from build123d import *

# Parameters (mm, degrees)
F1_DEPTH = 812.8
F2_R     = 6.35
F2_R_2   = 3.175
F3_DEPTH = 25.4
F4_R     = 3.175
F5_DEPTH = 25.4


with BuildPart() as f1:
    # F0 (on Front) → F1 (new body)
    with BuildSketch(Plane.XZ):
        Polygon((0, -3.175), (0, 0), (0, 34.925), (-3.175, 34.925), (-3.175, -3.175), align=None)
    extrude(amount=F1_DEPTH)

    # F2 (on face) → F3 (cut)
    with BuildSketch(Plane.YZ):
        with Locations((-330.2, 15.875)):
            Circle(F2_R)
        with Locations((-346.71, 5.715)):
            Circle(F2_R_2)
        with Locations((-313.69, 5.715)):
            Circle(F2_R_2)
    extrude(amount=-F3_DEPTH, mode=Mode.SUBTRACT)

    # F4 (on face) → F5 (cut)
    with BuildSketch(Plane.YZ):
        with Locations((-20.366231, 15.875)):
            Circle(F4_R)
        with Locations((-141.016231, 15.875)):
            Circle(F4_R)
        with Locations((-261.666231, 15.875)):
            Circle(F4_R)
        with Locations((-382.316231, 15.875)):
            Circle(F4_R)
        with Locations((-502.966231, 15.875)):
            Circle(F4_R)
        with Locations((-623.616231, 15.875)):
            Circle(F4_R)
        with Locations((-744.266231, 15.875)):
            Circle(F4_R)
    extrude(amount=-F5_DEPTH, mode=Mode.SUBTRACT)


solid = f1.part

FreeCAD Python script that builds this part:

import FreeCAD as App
import Part
import Sketcher
from FreeCAD import Vector
Q = App.Units.Quantity


def add_polygon(sketch, points):
    """Adds a closed chain of lines whose ends are joined by coincident constraints."""
    first, n = sketch.GeometryCount, len(points)
    for a, b in zip(points, points[1:] + points[:1]):
        sketch.addGeometry(Part.LineSegment(App.Vector(*a, 0), App.Vector(*b, 0)), False)
    for i in range(n):
        sketch.addConstraint(Sketcher.Constraint("Coincident", first + i, 2, first + (i + 1) % n, 1))

doc = App.newDocument("Part")
body = doc.addObject("PartDesign::Body", "Body")

# Sketch on XZ plane
sketch1 = body.newObject("Sketcher::SketchObject", "Sketch")
sketch1.AttachmentSupport = (doc.getObject("XZ_Plane"), [""])
sketch1.MapMode = "FlatFace"
add_polygon(sketch1, [(0, -3.175), (0, 34.925), (-3.175, 34.925), (-3.175, -3.175)])  # lines 0-3
sketch1.addConstraint([
    Sketcher.Constraint("Vertical", 0),
    Sketcher.Constraint("Horizontal", 1),
    Sketcher.Constraint("Vertical", 2),
    Sketcher.Constraint("Horizontal", 3),
    Sketcher.Constraint("PointOnObject", 0, 2, -2),
    Sketcher.Constraint("DistanceY", 0, 1, 0, 2, Q("1.5 in")),
    Sketcher.Constraint("DistanceX", 1, 2, 1, 1, Q("0.125 in")),
    Sketcher.Constraint("DistanceY", -1, 1, 0, 2, Q("1.375 in")),
])
pad1 = body.newObject("PartDesign::Pad", "Pad")
pad1.Profile = sketch1
pad1.Length = Q("32 in")

# Sketch on YZ plane
sketch2 = body.newObject("Sketcher::SketchObject", "Sketch001")
sketch2.AttachmentSupport = (doc.getObject("YZ_Plane"), [""])
sketch2.MapMode = "FlatFace"
sketch2.addGeometry([
    Part.Circle(Vector(-330.2, 15.875, 0), Vector(0, 0, 1), 6.35),
    Part.Circle(Vector(-346.71, 5.715, 0), Vector(0, 0, 1), 3.175),
    Part.Circle(Vector(-313.69, 5.715, 0), Vector(0, 0, 1), 3.175),
], False)
sketch2.addConstraint([
    Sketcher.Constraint("Equal", 1, 2),
    Sketcher.Constraint("Horizontal", 1, 3, 2, 3),
    Sketcher.Constraint("Diameter", 0, Q("0.5 in")),
    Sketcher.Constraint("Diameter", 1, Q("0.25 in")),
    Sketcher.Constraint("DistanceX", 0, 3, -1, 1, Q("13 in")),
    Sketcher.Constraint("DistanceY", 1, 3, 0, 3, Q("0.4 in")),
    Sketcher.Constraint("DistanceX", 1, 3, 2, 3, Q("1.3 in")),
    Sketcher.Constraint("DistanceX", 1, 3, -1, 1, Q("13.65 in")),
    Sketcher.Constraint("DistanceY", -1, 1, 0, 3, Q("0.625 in")),
])
pocket1 = body.newObject("PartDesign::Pocket", "Pocket")
pocket1.Profile = sketch2
pocket1.Length = Q("1 in")

# Sketch on YZ plane
sketch3 = body.newObject("Sketcher::SketchObject", "Sketch002")
sketch3.AttachmentSupport = (doc.getObject("YZ_Plane"), [""])
sketch3.MapMode = "FlatFace"
sketch3.addGeometry([
    Part.Circle(Vector(-20.366231, 15.875, 0), Vector(0, 0, 1), 3.175),  # 0
    Part.Circle(Vector(-141.016231, 15.875, 0), Vector(0, 0, 1), 3.175),  # 1
    Part.Circle(Vector(-261.666231, 15.875, 0), Vector(0, 0, 1), 3.175),  # 2
    Part.Circle(Vector(-382.316231, 15.875, 0), Vector(0, 0, 1), 3.175),  # 3
    Part.Circle(Vector(-502.966231, 15.875, 0), Vector(0, 0, 1), 3.175),  # 4
    Part.Circle(Vector(-623.616231, 15.875, 0), Vector(0, 0, 1), 3.175),  # 5
    Part.Circle(Vector(-744.266231, 15.875, 0), Vector(0, 0, 1), 3.175),  # 6
], False)
sketch3.addConstraint([
    Sketcher.Constraint("Equal", 0, 1),
    Sketcher.Constraint("Equal", 1, 2),
    Sketcher.Constraint("Equal", 2, 3),
    Sketcher.Constraint("Equal", 3, 4),
    Sketcher.Constraint("Equal", 4, 5),
    Sketcher.Constraint("Equal", 5, 6),
    Sketcher.Constraint("Horizontal", 0, 3, 1, 3),
    Sketcher.Constraint("Horizontal", 1, 3, 2, 3),
    Sketcher.Constraint("Horizontal", 2, 3, 3, 3),
    Sketcher.Constraint("Horizontal", 3, 3, 4, 3),
    Sketcher.Constraint("Horizontal", 4, 3, 5, 3),
    Sketcher.Constraint("Horizontal", 5, 3, 6, 3),
    Sketcher.Constraint("Diameter", 0, Q("0.25 in")),
    Sketcher.Constraint("DistanceX", 4, 3, 0, 3, Q("19 in")),
    Sketcher.Constraint("DistanceX", 5, 3, 1, 3, Q("19 in")),
    Sketcher.Constraint("DistanceX", 6, 3, 2, 3, Q("19 in")),
    Sketcher.Constraint("DistanceX", 2, 3, 0, 3, Q("9.5 in")),
    Sketcher.Constraint("DistanceX", 3, 3, 1, 3, Q("9.5 in")),
    Sketcher.Constraint("DistanceX", 1, 3, 0, 3, Q("4.75 in")),
    Sketcher.Constraint("DistanceY", -1, 1, 0, 3, Q("0.625 in")),
    Sketcher.Constraint("DistanceX", 0, 3, -1, 1, 20.366231),
])
pocket2 = body.newObject("PartDesign::Pocket", "Pocket001")
pocket2.Profile = sketch3
pocket2.Length = Q("1 in")

doc.recompute()
